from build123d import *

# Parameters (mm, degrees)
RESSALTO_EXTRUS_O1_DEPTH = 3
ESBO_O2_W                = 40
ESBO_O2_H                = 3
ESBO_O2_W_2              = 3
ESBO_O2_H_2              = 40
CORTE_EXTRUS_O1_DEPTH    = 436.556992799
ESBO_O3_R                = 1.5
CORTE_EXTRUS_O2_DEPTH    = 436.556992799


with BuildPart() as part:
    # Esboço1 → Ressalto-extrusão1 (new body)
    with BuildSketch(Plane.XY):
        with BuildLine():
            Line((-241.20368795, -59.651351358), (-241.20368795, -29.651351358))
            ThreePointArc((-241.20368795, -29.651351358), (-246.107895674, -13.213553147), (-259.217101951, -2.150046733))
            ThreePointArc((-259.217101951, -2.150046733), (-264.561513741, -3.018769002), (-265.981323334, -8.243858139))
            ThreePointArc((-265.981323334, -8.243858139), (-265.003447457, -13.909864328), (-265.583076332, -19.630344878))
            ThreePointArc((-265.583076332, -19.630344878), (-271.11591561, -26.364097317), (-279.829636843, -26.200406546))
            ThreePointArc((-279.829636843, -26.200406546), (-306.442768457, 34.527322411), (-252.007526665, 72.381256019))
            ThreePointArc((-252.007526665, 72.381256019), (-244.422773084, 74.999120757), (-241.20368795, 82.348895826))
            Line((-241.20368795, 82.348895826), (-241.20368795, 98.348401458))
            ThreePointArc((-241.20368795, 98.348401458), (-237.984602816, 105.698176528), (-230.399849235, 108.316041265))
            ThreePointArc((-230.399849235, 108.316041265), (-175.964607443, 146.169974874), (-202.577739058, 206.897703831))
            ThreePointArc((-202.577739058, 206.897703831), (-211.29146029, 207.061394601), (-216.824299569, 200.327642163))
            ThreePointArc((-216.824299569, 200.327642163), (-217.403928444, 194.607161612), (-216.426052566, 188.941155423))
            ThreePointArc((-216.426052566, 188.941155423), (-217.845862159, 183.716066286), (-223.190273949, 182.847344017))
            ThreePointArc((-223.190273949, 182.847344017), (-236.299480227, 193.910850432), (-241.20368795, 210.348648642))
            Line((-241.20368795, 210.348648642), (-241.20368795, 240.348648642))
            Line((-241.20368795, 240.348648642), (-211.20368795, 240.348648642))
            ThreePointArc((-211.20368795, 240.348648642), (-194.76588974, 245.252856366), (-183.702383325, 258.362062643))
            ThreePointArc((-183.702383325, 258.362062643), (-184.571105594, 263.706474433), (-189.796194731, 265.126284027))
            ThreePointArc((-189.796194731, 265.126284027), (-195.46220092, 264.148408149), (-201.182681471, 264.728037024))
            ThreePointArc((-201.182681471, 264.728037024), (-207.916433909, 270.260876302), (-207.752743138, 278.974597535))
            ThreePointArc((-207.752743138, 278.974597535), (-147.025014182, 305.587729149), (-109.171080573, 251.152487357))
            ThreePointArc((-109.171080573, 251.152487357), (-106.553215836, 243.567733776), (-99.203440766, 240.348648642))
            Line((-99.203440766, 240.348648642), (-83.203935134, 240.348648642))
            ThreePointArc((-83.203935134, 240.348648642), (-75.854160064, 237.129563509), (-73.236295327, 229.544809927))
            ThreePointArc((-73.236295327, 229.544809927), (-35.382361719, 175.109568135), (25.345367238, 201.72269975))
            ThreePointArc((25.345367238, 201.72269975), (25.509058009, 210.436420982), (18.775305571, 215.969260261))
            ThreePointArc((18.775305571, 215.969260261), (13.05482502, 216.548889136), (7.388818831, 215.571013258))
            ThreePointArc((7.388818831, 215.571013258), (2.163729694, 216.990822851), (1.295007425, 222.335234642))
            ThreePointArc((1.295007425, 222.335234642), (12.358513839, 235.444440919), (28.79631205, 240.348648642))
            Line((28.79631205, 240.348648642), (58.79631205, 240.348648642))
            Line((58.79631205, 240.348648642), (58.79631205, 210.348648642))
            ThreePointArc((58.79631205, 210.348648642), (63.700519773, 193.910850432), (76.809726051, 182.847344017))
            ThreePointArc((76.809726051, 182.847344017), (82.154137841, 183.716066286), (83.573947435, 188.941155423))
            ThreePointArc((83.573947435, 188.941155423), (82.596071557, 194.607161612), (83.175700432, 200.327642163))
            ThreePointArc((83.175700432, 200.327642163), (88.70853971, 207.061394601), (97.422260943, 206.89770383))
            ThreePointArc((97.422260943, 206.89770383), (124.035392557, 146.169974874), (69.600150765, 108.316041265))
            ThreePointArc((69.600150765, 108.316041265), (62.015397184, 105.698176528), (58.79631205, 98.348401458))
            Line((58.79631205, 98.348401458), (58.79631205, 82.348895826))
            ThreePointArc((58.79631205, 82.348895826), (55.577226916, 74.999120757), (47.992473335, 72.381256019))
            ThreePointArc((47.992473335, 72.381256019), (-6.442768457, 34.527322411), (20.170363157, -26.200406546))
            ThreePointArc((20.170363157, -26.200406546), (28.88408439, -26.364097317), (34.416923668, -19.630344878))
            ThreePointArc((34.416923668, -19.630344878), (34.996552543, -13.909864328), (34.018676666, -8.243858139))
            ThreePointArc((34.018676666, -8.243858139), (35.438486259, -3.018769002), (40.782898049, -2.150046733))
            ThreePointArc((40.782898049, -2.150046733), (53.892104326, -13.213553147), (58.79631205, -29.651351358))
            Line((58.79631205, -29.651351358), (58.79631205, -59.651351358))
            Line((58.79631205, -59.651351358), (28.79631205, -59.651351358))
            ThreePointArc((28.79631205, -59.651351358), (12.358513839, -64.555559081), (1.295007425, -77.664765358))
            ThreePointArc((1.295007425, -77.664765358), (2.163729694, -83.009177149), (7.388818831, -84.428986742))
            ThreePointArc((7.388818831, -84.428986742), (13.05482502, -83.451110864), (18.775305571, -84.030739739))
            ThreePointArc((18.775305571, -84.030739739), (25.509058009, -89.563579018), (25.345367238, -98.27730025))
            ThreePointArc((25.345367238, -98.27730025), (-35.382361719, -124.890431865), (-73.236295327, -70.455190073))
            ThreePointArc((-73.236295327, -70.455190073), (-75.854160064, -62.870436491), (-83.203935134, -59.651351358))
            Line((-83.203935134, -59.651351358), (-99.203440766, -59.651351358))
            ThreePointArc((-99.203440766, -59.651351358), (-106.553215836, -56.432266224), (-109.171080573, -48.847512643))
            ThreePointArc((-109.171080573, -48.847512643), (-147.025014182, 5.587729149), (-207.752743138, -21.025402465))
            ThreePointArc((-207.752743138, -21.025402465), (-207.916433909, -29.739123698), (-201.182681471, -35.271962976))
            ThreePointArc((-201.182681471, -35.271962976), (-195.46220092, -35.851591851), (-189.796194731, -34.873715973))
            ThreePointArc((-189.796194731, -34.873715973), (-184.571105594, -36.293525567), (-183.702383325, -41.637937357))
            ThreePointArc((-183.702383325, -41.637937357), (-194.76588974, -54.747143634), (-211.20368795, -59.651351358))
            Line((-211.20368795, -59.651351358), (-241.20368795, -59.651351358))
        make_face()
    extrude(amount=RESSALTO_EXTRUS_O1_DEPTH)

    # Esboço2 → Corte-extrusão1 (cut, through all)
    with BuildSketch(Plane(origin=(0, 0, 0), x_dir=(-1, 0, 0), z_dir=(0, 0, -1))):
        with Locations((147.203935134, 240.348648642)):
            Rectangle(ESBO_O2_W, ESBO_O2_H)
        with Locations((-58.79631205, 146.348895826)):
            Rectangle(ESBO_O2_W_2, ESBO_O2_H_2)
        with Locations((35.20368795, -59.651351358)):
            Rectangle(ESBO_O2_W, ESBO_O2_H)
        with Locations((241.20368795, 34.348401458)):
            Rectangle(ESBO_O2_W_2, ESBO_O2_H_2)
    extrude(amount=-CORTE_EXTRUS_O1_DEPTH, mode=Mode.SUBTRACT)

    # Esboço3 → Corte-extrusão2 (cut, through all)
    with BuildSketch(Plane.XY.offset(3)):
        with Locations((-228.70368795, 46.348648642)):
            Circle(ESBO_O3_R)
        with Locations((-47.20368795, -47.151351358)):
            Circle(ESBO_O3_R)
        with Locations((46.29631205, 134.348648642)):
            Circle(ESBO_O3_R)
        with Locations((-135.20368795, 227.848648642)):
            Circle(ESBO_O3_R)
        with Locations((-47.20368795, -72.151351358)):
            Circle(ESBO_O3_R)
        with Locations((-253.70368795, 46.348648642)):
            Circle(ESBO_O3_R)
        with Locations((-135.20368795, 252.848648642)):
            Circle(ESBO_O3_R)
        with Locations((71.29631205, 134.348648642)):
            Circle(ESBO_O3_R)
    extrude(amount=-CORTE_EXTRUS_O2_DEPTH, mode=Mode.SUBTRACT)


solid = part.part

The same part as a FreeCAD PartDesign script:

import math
import FreeCAD as App
import Part
import Sketcher
from FreeCAD import Vector


def add_polygon(sketch, points):
    """Adds a closed chain of lines whose ends are joined by coincident constraints."""
    first, n = sketch.GeometryCount, len(points)
    for a, b in zip(points, points[1:] + points[:1]):
        sketch.addGeometry(Part.LineSegment(App.Vector(*a, 0), App.Vector(*b, 0)), False)
    for i in range(n):
        sketch.addConstraint(Sketcher.Constraint("Coincident", first + i, 2, first + (i + 1) % n, 1))

doc = App.newDocument("Part")
body = doc.addObject("PartDesign::Body", "Body")

sketch1 = body.newObject("Sketcher::SketchObject", "Sketch")
sketch1.AttachmentSupport = (doc.getObject("XY_Plane"), [""])
sketch1.MapMode = "FlatFace"
sketch1.addGeometry([
    Part.LineSegment(Vector(-241.203688, -29.651351, 0), Vector(-241.203688, -59.651351, 0)),
    Part.LineSegment(Vector(-241.203688, -59.651351, 0), Vector(-211.203688, -59.651351, 0)),
    Part.ArcOfCircle(Part.Circle(Vector(-211.203688, -29.651351, 0), Vector(0, 0, 1), 30), math.radians(-90), math.radians(-23.550229)),
    Part.ArcOfCircle(Part.Circle(Vector(-188.285934, -39.640173, 0), Vector(0, 0, 1), 5), math.radians(-23.550229), math.radians(107.5809)),
    Part.ArcOfCircle(Part.Circle(Vector(-196.203688, -14.651351, 0), Vector(0, 0, 1), 21.213203), math.radians(-103.574647), math.radians(-72.4191)),
    Part.ArcOfCircle(Part.Circle(Vector(-198.835561, -25.551313, 0), Vector(0, 0, 1), 10), math.radians(153.089952), math.radians(256.425353)),
    Part.ArcOfCircle(Part.Circle(Vector(-161.203688, -44.651351, 0), Vector(0, 0, 1), 52.201533), math.radians(-4.610631), math.radians(153.089952)),
    Part.ArcOfCircle(Part.Circle(Vector(-99.203441, -49.651351, 0), Vector(0, 0, 1), 10), math.radians(175.389369), math.radians(270)),
    Part.LineSegment(Vector(-99.203441, -59.651351, 0), Vector(-83.203935, -59.651351, 0)),
    Part.ArcOfCircle(Part.Circle(Vector(-83.203935, -69.651351, 0), Vector(0, 0, 1), 10), math.radians(-4.610631), math.radians(90)),
    Part.ArcOfCircle(Part.Circle(Vector(-21.203688, -74.651351, 0), Vector(0, 0, 1), 52.201533), math.radians(175.389369), math.radians(333.089952)),
    Part.ArcOfCircle(Part.Circle(Vector(16.428186, -93.751389, 0), Vector(0, 0, 1), 10), math.radians(-26.910048), math.radians(76.425353)),
    Part.ArcOfCircle(Part.Circle(Vector(13.796312, -104.651351, 0), Vector(0, 0, 1), 21.213203), math.radians(76.425353), math.radians(107.5809)),
    Part.ArcOfCircle(Part.Circle(Vector(5.878558, -79.66253, 0), Vector(0, 0, 1), 5), math.radians(156.449771), math.radians(287.5809)),
    Part.ArcOfCircle(Part.Circle(Vector(28.796312, -89.651351, 0), Vector(0, 0, 1), 30), math.radians(90), math.radians(156.449771)),
    Part.LineSegment(Vector(28.796312, -59.651351, 0), Vector(58.796312, -59.651351, 0)),
    Part.LineSegment(Vector(58.796312, -59.651351, 0), Vector(58.796312, -29.651351, 0)),
    Part.ArcOfCircle(Part.Circle(Vector(28.796312, -29.651351, 0), Vector(0, 0, 1), 30), math.radians(0), math.radians(66.449771)),
    Part.ArcOfCircle(Part.Circle(Vector(38.785134, -6.733598, 0), Vector(0, 0, 1), 5), math.radians(66.449771), math.radians(197.5809)),
    Part.ArcOfCircle(Part.Circle(Vector(13.796312, -14.651351, 0), Vector(0, 0, 1), 21.213203), math.radians(-13.574647), math.radians(17.5809)),
    Part.ArcOfCircle(Part.Circle(Vector(24.696274, -17.283225, 0), Vector(0, 0, 1), 10), math.radians(-116.910048), math.radians(-13.574647)),
    Part.ArcOfCircle(Part.Circle(Vector(43.796312, 20.348649, 0), Vector(0, 0, 1), 52.201533), math.radians(85.389369), math.radians(243.089952)),
    Part.ArcOfCircle(Part.Circle(Vector(48.796312, 82.348896, 0), Vector(0, 0, 1), 10), math.radians(-94.610631), math.radians(0)),
    Part.LineSegment(Vector(58.796312, 82.348896, 0), Vector(58.796312, 98.348401, 0)),
    Part.ArcOfCircle(Part.Circle(Vector(68.796312, 98.348401, 0), Vector(0, 0, 1), 10), math.radians(85.389369), math.radians(180)),
    Part.ArcOfCircle(Part.Circle(Vector(73.796312, 160.348649, 0), Vector(0, 0, 1), 52.201533), math.radians(-94.610631), math.radians(63.089952)),
    Part.ArcOfCircle(Part.Circle(Vector(92.89635, 197.980522, 0), Vector(0, 0, 1), 10), math.radians(63.089952), math.radians(166.425353)),
    Part.ArcOfCircle(Part.Circle(Vector(103.796312, 195.348649, 0), Vector(0, 0, 1), 21.213203), math.radians(166.425353), math.radians(197.5809)),
    Part.ArcOfCircle(Part.Circle(Vector(78.80749, 187.430895, 0), Vector(0, 0, 1), 5), math.radians(-113.550229), math.radians(17.5809)),
    Part.ArcOfCircle(Part.Circle(Vector(88.796312, 210.348649, 0), Vector(0, 0, 1), 30), math.radians(180), math.radians(246.449771)),
    Part.LineSegment(Vector(58.796312, 210.348649, 0), Vector(58.796312, 240.348649, 0)),
    Part.LineSegment(Vector(58.796312, 240.348649, 0), Vector(28.796312, 240.348649, 0)),
    Part.ArcOfCircle(Part.Circle(Vector(28.796312, 210.348649, 0), Vector(0, 0, 1), 30), math.radians(90), math.radians(156.449771)),
    Part.ArcOfCircle(Part.Circle(Vector(5.878558, 220.33747, 0), Vector(0, 0, 1), 5), math.radians(156.449771), math.radians(287.5809)),
    Part.ArcOfCircle(Part.Circle(Vector(13.796312, 195.348649, 0), Vector(0, 0, 1), 21.213203), math.radians(76.425353), math.radians(107.5809)),
    Part.ArcOfCircle(Part.Circle(Vector(16.428186, 206.248611, 0), Vector(0, 0, 1), 10), math.radians(-26.910048), math.radians(76.425353)),
    Part.ArcOfCircle(Part.Circle(Vector(-21.203688, 225.348649, 0), Vector(0, 0, 1), 52.201533), math.radians(175.389369), math.radians(333.089952)),
    Part.ArcOfCircle(Part.Circle(Vector(-83.203935, 230.348649, 0), Vector(0, 0, 1), 10), math.radians(-4.610631), math.radians(90)),
    Part.LineSegment(Vector(-83.203935, 240.348649, 0), Vector(-99.203441, 240.348649, 0)),
    Part.ArcOfCircle(Part.Circle(Vector(-99.203441, 250.348649, 0), Vector(0, 0, 1), 10), math.radians(175.389369), math.radians(270)),
    Part.ArcOfCircle(Part.Circle(Vector(-161.203688, 255.348649, 0), Vector(0, 0, 1), 52.201533), math.radians(-4.610631), math.radians(153.089952)),
    Part.ArcOfCircle(Part.Circle(Vector(-198.835561, 274.448687, 0), Vector(0, 0, 1), 10), math.radians(153.089952), math.radians(256.425353)),
    Part.ArcOfCircle(Part.Circle(Vector(-196.203688, 285.348649, 0), Vector(0, 0, 1), 21.213203), math.radians(-103.574647), math.radians(-72.4191)),
    Part.ArcOfCircle(Part.Circle(Vector(-188.285934, 260.359827, 0), Vector(0, 0, 1), 5), math.radians(-23.550229), math.radians(107.5809)),
    Part.ArcOfCircle(Part.Circle(Vector(-211.203688, 270.348649, 0), Vector(0, 0, 1), 30), math.radians(-90), math.radians(-23.550229)),
    Part.LineSegment(Vector(-211.203688, 240.348649, 0), Vector(-241.203688, 240.348649, 0)),
    Part.LineSegment(Vector(-241.203688, 240.348649, 0), Vector(-241.203688, 210.348649, 0)),
    Part.ArcOfCircle(Part.Circle(Vector(-211.203688, 210.348649, 0), Vector(0, 0, 1), 30), math.radians(180), math.radians(246.449771)),
    Part.ArcOfCircle(Part.Circle(Vector(-221.19251, 187.430895, 0), Vector(0, 0, 1), 5), math.radians(-113.550229), math.radians(17.5809)),
    Part.ArcOfCircle(Part.Circle(Vector(-196.203688, 195.348649, 0), Vector(0, 0, 1), 21.213203), math.radians(166.425353), math.radians(197.5809)),
    Part.ArcOfCircle(Part.Circle(Vector(-207.10365, 197.980522, 0), Vector(0, 0, 1), 10), math.radians(63.089952), math.radians(166.425353)),
    Part.ArcOfCircle(Part.Circle(Vector(-226.203688, 160.348649, 0), Vector(0, 0, 1), 52.201533), math.radians(-94.610631), math.radians(63.089952)),
    Part.ArcOfCircle(Part.Circle(Vector(-231.203688, 98.348401, 0), Vector(0, 0, 1), 10), math.radians(85.389369), math.radians(180)),
    Part.LineSegment(Vector(-241.203688, 98.348401, 0), Vector(-241.203688, 82.348896, 0)),
    Part.ArcOfCircle(Part.Circle(Vector(-251.203688, 82.348896, 0), Vector(0, 0, 1), 10), math.radians(-94.610631), math.radians(0)),
    Part.ArcOfCircle(Part.Circle(Vector(-256.203688, 20.348649, 0), Vector(0, 0, 1), 52.201533), math.radians(85.389369), math.radians(243.089952)),
    Part.ArcOfCircle(Part.Circle(Vector(-275.303726, -17.283225, 0), Vector(0, 0, 1), 10), math.radians(-116.910048), math.radians(-13.574647)),
    Part.ArcOfCircle(Part.Circle(Vector(-286.203688, -14.651351, 0), Vector(0, 0, 1), 21.213203), math.radians(-13.574647), math.radians(17.5809)),
    Part.ArcOfCircle(Part.Circle(Vector(-261.214866, -6.733598, 0), Vector(0, 0, 1), 5), math.radians(66.449771), math.radians(197.5809)),
    Part.ArcOfCircle(Part.Circle(Vector(-271.203688, -29.651351, 0), Vector(0, 0, 1), 30), math.radians(0), math.radians(66.449771)),
], False)
sketch1.addConstraint([
    Sketcher.Constraint("Coincident", 0, 2, 1, 1),
    Sketcher.Constraint("Coincident", 1, 2, 2, 1),
    Sketcher.Constraint("Coincident", 2, 2, 3, 1),
    Sketcher.Constraint("Coincident", 3, 2, 4, 2),
    Sketcher.Constraint("Coincident", 4, 1, 5, 2),
    Sketcher.Constraint("Coincident", 5, 1, 6, 2),
    Sketcher.Constraint("Coincident", 6, 1, 7, 1),
    Sketcher.Constraint("Coincident", 7, 2, 8, 1),
    Sketcher.Constraint("Coincident", 8, 2, 9, 2),
    Sketcher.Constraint("Coincident", 9, 1, 10, 1),
    Sketcher.Constraint("Coincident", 10, 2, 11, 1),
    Sketcher.Constraint("Coincident", 11, 2, 12, 1),
    Sketcher.Constraint("Coincident", 12, 2, 13, 2),
    Sketcher.Constraint("Coincident", 13, 1, 14, 2),
    Sketcher.Constraint("Coincident", 14, 1, 15, 1),
    Sketcher.Constraint("Coincident", 15, 2, 16, 1),
    Sketcher.Constraint("Coincident", 16, 2, 17, 1),
    Sketcher.Constraint("Coincident", 17, 2, 18, 1),
    Sketcher.Constraint("Coincident", 18, 2, 19, 2),
    Sketcher.Constraint("Coincident", 19, 1, 20, 2),
    Sketcher.Constraint("Coincident", 20, 1, 21, 2),
    Sketcher.Constraint("Coincident", 21, 1, 22, 1),
    Sketcher.Constraint("Coincident", 22, 2, 23, 1),
    Sketcher.Constraint("Coincident", 23, 2, 24, 2),
    Sketcher.Constraint("Coincident", 24, 1, 25, 1),
    Sketcher.Constraint("Coincident", 25, 2, 26, 1),
    Sketcher.Constraint("Coincident", 26, 2, 27, 1),
    Sketcher.Constraint("Coincident", 27, 2, 28, 2),
    Sketcher.Constraint("Coincident", 28, 1, 29, 2),
    Sketcher.Constraint("Coincident", 29, 1, 30, 1),
    Sketcher.Constraint("Coincident", 30, 2, 31, 1),
    Sketcher.Constraint("Coincident", 31, 2, 32, 1),
    Sketcher.Constraint("Coincident", 32, 2, 33, 1),
    Sketcher.Constraint("Coincident", 33, 2, 34, 2),
    Sketcher.Constraint("Coincident", 34, 1, 35, 2),
    Sketcher.Constraint("Coincident", 35, 1, 36, 2),
    Sketcher.Constraint("Coincident", 36, 1, 37, 1),
    Sketcher.Constraint("Coincident", 37, 2, 38, 1),
    Sketcher.Constraint("Coincident", 38, 2, 39, 2),
    Sketcher.Constraint("Coincident", 39, 1, 40, 1),
    Sketcher.Constraint("Coincident", 40, 2, 41, 1),
    Sketcher.Constraint("Coincident", 41, 2, 42, 1),
    Sketcher.Constraint("Coincident", 42, 2, 43, 2),
    Sketcher.Constraint("Coincident", 43, 1, 44, 2),
    Sketcher.Constraint("Coincident", 44, 1, 45, 1),
    Sketcher.Constraint("Coincident", 45, 2, 46, 1),
    Sketcher.Constraint("Coincident", 46, 2, 47, 1),
    Sketcher.Constraint("Coincident", 47, 2, 48, 1),
    Sketcher.Constraint("Coincident", 48, 2, 49, 2),
    Sketcher.Constraint("Coincident", 49, 1, 50, 2),
    Sketcher.Constraint("Coincident", 50, 1, 51, 2),
    Sketcher.Constraint("Coincident", 51, 1, 52, 1),
    Sketcher.Constraint("Coincident", 52, 2, 53, 1),
    Sketcher.Constraint("Coincident", 53, 2, 54, 2),
    Sketcher.Constraint("Coincident", 54, 1, 55, 1),
    Sketcher.Constraint("Coincident", 55, 2, 56, 1),
    Sketcher.Constraint("Coincident", 56, 2, 57, 1),
    Sketcher.Constraint("Coincident", 57, 2, 58, 2),
    Sketcher.Constraint("Coincident", 58, 1, 59, 2),
    Sketcher.Constraint("Coincident", 59, 1, 0, 1),
    Sketcher.Constraint("Vertical", 0),
    Sketcher.Constraint("Horizontal", 1),
    Sketcher.Constraint("Horizontal", 8),
    Sketcher.Constraint("Horizontal", 15),
    Sketcher.Constraint("Vertical", 16),
    Sketcher.Constraint("Vertical", 23),
    Sketcher.Constraint("Vertical", 30),
    Sketcher.Constraint("Horizontal", 31),
    Sketcher.Constraint("Horizontal", 38),
    Sketcher.Constraint("Horizontal", 45),
    Sketcher.Constraint("Vertical", 46),
    Sketcher.Constraint("Vertical", 53),
    Sketcher.Constraint("Radius", 2, 30.0),
    Sketcher.Constraint("Radius", 3, 5.0),
    Sketcher.Constraint("Radius", 5, 10.0),
    Sketcher.Constraint("Radius", 7, 10.0),
    Sketcher.Constraint("Radius", 9, 10.0),
    Sketcher.Constraint("Radius", 11, 10.0),
    Sketcher.Constraint("Radius", 13, 5.0),
    Sketcher.Constraint("Radius", 14, 30.0),
    Sketcher.Constraint("Radius", 17, 30.0),
    Sketcher.Constraint("Radius", 18, 5.0),
    Sketcher.Constraint("Radius", 20, 10.0),
    Sketcher.Constraint("Radius", 22, 10.0),
    Sketcher.Constraint("Radius", 24, 10.0),
    Sketcher.Constraint("Radius", 26, 10.0),
    Sketcher.Constraint("Radius", 28, 5.0),
    Sketcher.Constraint("Radius", 29, 30.0),
    Sketcher.Constraint("Radius", 32, 30.0),
    Sketcher.Constraint("Radius", 33, 5.0),
    Sketcher.Constraint("Radius", 35, 10.0),
    Sketcher.Constraint("Radius", 37, 10.0),
    Sketcher.Constraint("Radius", 39, 10.0),
    Sketcher.Constraint("Radius", 41, 10.0),
    Sketcher.Constraint("Radius", 43, 5.0),
    Sketcher.Constraint("Radius", 44, 30.0),
    Sketcher.Constraint("Radius", 47, 30.0),
    Sketcher.Constraint("Radius", 48, 5.0),
    Sketcher.Constraint("Radius", 50, 10.0),
    Sketcher.Constraint("Radius", 52, 10.0),
    Sketcher.Constraint("Radius", 54, 10.0),
    Sketcher.Constraint("Radius", 56, 10.0),
    Sketcher.Constraint("Radius", 58, 5.0),
    Sketcher.Constraint("Radius", 59, 30.0),
    Sketcher.Constraint("DistanceX", 1, 1, 1, 2, 30.0),
    Sketcher.Constraint("DistanceX", 15, 1, 15, 2, 30.0),
    Sketcher.Constraint("DistanceX", 31, 2, 31, 1, 30.0),
    Sketcher.Constraint("DistanceX", 45, 2, 45, 1, 30.0),
    Sketcher.Constraint("DistanceY", 0, 2, 0, 1, 30.0),
    Sketcher.Constraint("DistanceY", 16, 1, 16, 2, 30.0),
    Sketcher.Constraint("DistanceY", 30, 1, 30, 2, 30.0),
    Sketcher.Constraint("DistanceY", 46, 2, 46, 1, 30.0),
    Sketcher.Constraint("Radius", 4, 21.213203),
    Sketcher.Constraint("Radius", 6, 52.201533),
    Sketcher.Constraint("Radius", 10, 52.201533),
    Sketcher.Constraint("Radius", 12, 21.213203),
    Sketcher.Constraint("Radius", 19, 21.213203),
    Sketcher.Constraint("Radius", 21, 52.201533),
    Sketcher.Constraint("Radius", 25, 52.201533),
    Sketcher.Constraint("Radius", 27, 21.213203),
    Sketcher.Constraint("Radius", 34, 21.213203),
    Sketcher.Constraint("Radius", 36, 52.201533),
    Sketcher.Constraint("Radius", 40, 52.201533),
    Sketcher.Constraint("Radius", 42, 21.213203),
    Sketcher.Constraint("Radius", 49, 21.213203),
    Sketcher.Constraint("Radius", 51, 52.201533),
    Sketcher.Constraint("Radius", 55, 52.201533),
    Sketcher.Constraint("Radius", 57, 21.213203),
    Sketcher.Constraint("DistanceY", -1, 1, 24, 3, 98.348401),
    Sketcher.Constraint("DistanceY", -1, 1, 52, 3, 98.348401),
    Sketcher.Constraint("DistanceY", 10, 2, -1, 1, 98.2773),
    Sketcher.Constraint("DistanceX", -1, 1, 17, 2, 40.782898),
    Sketcher.Constraint("DistanceY", -1, 1, 23, 2, 98.348401),
    Sketcher.Constraint("DistanceX", -1, 1, 26, 2, 83.1757),
    Sketcher.Constraint("DistanceY", -1, 1, 35, 1, 201.7227),
    Sketcher.Constraint("DistanceX", 49, 1, -1, 1, 216.8243),
    Sketcher.Constraint("DistanceY", -1, 1, 52, 2, 98.348401),
    Sketcher.Constraint("DistanceX", 58, 1, -1, 1, 259.217102),
    Sketcher.Constraint("DistanceX", 8, 1, 8, 2, 15.999506),
    Sketcher.Constraint("DistanceX", 38, 2, 38, 1, 15.999506),
    Sketcher.Constraint("DistanceY", 23, 1, 23, 2, 15.999506),
    Sketcher.Constraint("DistanceY", 53, 2, 53, 1, 15.999506),
    Sketcher.Constraint("DistanceY", 2, 3, -1, 1, 29.651351),
    Sketcher.Constraint("DistanceY", 4, 3, -1, 1, 14.651351),
    Sketcher.Constraint("DistanceX", 5, 3, -1, 1, 198.835561),
    Sketcher.Constraint("DistanceY", 6, 3, -1, 1, 44.651351),
    Sketcher.Constraint("DistanceX", 7, 3, -1, 1, 99.203441),
    Sketcher.Constraint("DistanceY", 7, 3, -1, 1, 49.651351),
    Sketcher.Constraint("DistanceY", 10, 3, -1, 1, 74.651351),
    Sketcher.Constraint("DistanceY", 11, 3, -1, 1, 93.751389),
    Sketcher.Constraint("DistanceY", 12, 3, -1, 1, 104.651351),
    Sketcher.Constraint("DistanceX", -1, 1, 13, 3, 5.878558),
    Sketcher.Constraint("DistanceY", 13, 3, -1, 1, 79.66253),
    Sketcher.Constraint("DistanceY", 14, 3, -1, 1, 89.651351),
    Sketcher.Constraint("DistanceY", 17, 3, -1, 1, 29.651351),
    Sketcher.Constraint("DistanceY", 19, 3, -1, 1, 14.651351),
    Sketcher.Constraint("DistanceY", -1, 1, 21, 3, 20.348649),
    Sketcher.Constraint("DistanceY", -1, 1, 25, 3, 160.348649),
    Sketcher.Constraint("DistanceX", -1, 1, 26, 3, 92.89635),
    Sketcher.Constraint("DistanceY", -1, 1, 27, 3, 195.348649),
    Sketcher.Constraint("DistanceX", -1, 1, 28, 3, 78.80749),
    Sketcher.Constraint("DistanceY", -1, 1, 29, 3, 210.348649),
    Sketcher.Constraint("DistanceY", -1, 1, 32, 3, 210.348649),
    Sketcher.Constraint("DistanceX", -1, 1, 33, 3, 5.878558),
    Sketcher.Constraint("DistanceY", -1, 1, 33, 3, 220.33747),
    Sketcher.Constraint("DistanceY", -1, 1, 34, 3, 195.348649),
    Sketcher.Constraint("DistanceY", -1, 1, 35, 3, 206.248611),
    Sketcher.Constraint("DistanceY", -1, 1, 36, 3, 225.348649),
    Sketcher.Constraint("DistanceY", -1, 1, 37, 3, 230.348649),
    Sketcher.Constraint("DistanceX", 39, 3, -1, 1, 99.203441),
    Sketcher.Constraint("DistanceY", -1, 1, 40, 3, 255.348649),
    Sketcher.Constraint("DistanceX", 41, 3, -1, 1, 198.835561),
    Sketcher.Constraint("DistanceY", -1, 1, 42, 3, 285.348649),
    Sketcher.Constraint("DistanceY", -1, 1, 44, 3, 270.348649),
    Sketcher.Constraint("DistanceY", -1, 1, 47, 3, 210.348649),
    Sketcher.Constraint("DistanceX", 48, 3, -1, 1, 221.19251),
    Sketcher.Constraint("DistanceY", -1, 1, 49, 3, 195.348649),
    Sketcher.Constraint("DistanceX", 50, 3, -1, 1, 207.10365),
    Sketcher.Constraint("DistanceY", -1, 1, 51, 3, 160.348649),
    Sketcher.Constraint("DistanceY", -1, 1, 55, 3, 20.348649),
    Sketcher.Constraint("DistanceY", 57, 3, -1, 1, 14.651351),
    Sketcher.Constraint("DistanceY", 59, 3, -1, 1, 29.651351),
    Sketcher.Constraint("DistanceX", 4, 1, -1, 1, 201.182681),
    Sketcher.Constraint("DistanceX", 6, 1, -1, 1, 109.171081),
    Sketcher.Constraint("DistanceX", 7, 2, -1, 1, 99.203441),
    Sketcher.Constraint("DistanceY", 9, 1, -1, 1, 70.45519),
    Sketcher.Constraint("DistanceY", 11, 2, -1, 1, 84.03074),
    Sketcher.Constraint("DistanceX", -1, 1, 12, 2, 7.388819),
    Sketcher.Constraint("DistanceY", 18, 2, -1, 1, 8.243858),
    Sketcher.Constraint("DistanceX", -1, 1, 24, 1, 69.600151),
    Sketcher.Constraint("DistanceY", -1, 1, 24, 1, 108.316041),
    Sketcher.Constraint("DistanceX", -1, 1, 25, 2, 97.422261),
    Sketcher.Constraint("DistanceX", -1, 1, 33, 2, 7.388819),
    Sketcher.Constraint("DistanceY", -1, 1, 34, 1, 215.96926),
    Sketcher.Constraint("DistanceY", -1, 1, 36, 1, 229.54481),
    Sketcher.Constraint("DistanceX", 38, 2, -1, 1, 99.203441),
    Sketcher.Constraint("DistanceX", 39, 1, -1, 1, 109.171081),
    Sketcher.Constraint("DistanceX", 41, 2, -1, 1, 201.182681),
    Sketcher.Constraint("DistanceX", 50, 1, -1, 1, 202.577739),
    Sketcher.Constraint("DistanceX", 51, 1, -1, 1, 230.399849),
    Sketcher.Constraint("DistanceY", -1, 1, 51, 1, 108.316041),
    Sketcher.Constraint("DistanceY", 57, 2, -1, 1, 8.243858),
    Sketcher.Constraint("DistanceX", 2, 3, -1, 1, 211.203688),
    Sketcher.Constraint("DistanceX", -1, 1, 17, 3, 28.796312),
    Sketcher.Constraint("DistanceX", -1, 1, 18, 3, 38.785134),
    Sketcher.Constraint("DistanceX", -1, 1, 20, 3, 24.696274),
    Sketcher.Constraint("DistanceX", 43, 3, -1, 1, 188.285934),
    Sketcher.Constraint("DistanceY", -1, 1, 54, 3, 82.348896),
    Sketcher.Constraint("DistanceX", 56, 3, -1, 1, 275.303726),
    Sketcher.Constraint("DistanceX", 58, 3, -1, 1, 261.214866),
    Sketcher.Constraint("DistanceX", 2, 2, -1, 1, 183.702383),
    Sketcher.Constraint("DistanceX", 3, 2, -1, 1, 189.796195),
    Sketcher.Constraint("DistanceX", 5, 1, -1, 1, 207.752743),
    Sketcher.Constraint("DistanceX", -1, 1, 13, 1, 1.295007),
    Sketcher.Constraint("DistanceX", -1, 1, 19, 1, 34.416924),
    Sketcher.Constraint("DistanceX", -1, 1, 20, 1, 20.170363),
    Sketcher.Constraint("DistanceX", -1, 1, 21, 1, 47.992473),
    Sketcher.Constraint("DistanceX", -1, 1, 27, 2, 83.573947),
    Sketcher.Constraint("DistanceX", -1, 1, 28, 1, 76.809726),
    Sketcher.Constraint("DistanceX", -1, 1, 32, 2, 1.295007),
    Sketcher.Constraint("DistanceX", 40, 2, -1, 1, 207.752743),
    Sketcher.Constraint("DistanceX", 42, 2, -1, 1, 189.796195),
    Sketcher.Constraint("DistanceX", 43, 1, -1, 1, 183.702383),
    Sketcher.Constraint("DistanceX", 47, 2, -1, 1, 223.190274),
    Sketcher.Constraint("DistanceX", 48, 2, -1, 1, 216.426053),
    Sketcher.Constraint("DistanceX", 54, 1, -1, 1, 252.007527),
    Sketcher.Constraint("DistanceX", 55, 2, -1, 1, 279.829637),
    Sketcher.Constraint("DistanceX", 56, 2, -1, 1, 265.583076),
])
pad1 = body.newObject("PartDesign::Pad", "Pad")
pad1.Profile = sketch1
pad1.Length = 3

sketch2 = body.newObject("Sketcher::SketchObject", "Sketch001")
sketch2.AttachmentSupport = (doc.getObject("XY_Plane"), [""])
sketch2.MapMode = "FlatFace"
add_polygon(sketch2, [(-127.2, 241.8), (-127.2, 238.8), (-167.2, 238.8), (-167.2, 241.8)])
add_polygon(sketch2, [(60.3, 166.3), (60.3, 126.3), (57.3, 126.3), (57.3, 166.3)])
add_polygon(sketch2, [(-15.2, -58.2), (-15.2, -61.2), (-55.2, -61.2), (-55.2, -58.2)])
add_polygon(sketch2, [(-239.7, 54.3), (-239.7, 14.3), (-242.7, 14.3), (-242.7, 54.3)])
sketch2.addConstraint([
    Sketcher.Constraint("Vertical", 0),
    Sketcher.Constraint("Horizontal", 1),
    Sketcher.Constraint("Vertical", 2),
    Sketcher.Constraint("Horizontal", 3),
    Sketcher.Constraint("Vertical", 4),
    Sketcher.Constraint("Horizontal", 5),
    Sketcher.Constraint("Vertical", 6),
    Sketcher.Constraint("Horizontal", 7),
    Sketcher.Constraint("Vertical", 8),
    Sketcher.Constraint("Horizontal", 9),
    Sketcher.Constraint("Vertical", 10),
    Sketcher.Constraint("Horizontal", 11),
    Sketcher.Constraint("Vertical", 12),
    Sketcher.Constraint("Horizontal", 13),
    Sketcher.Constraint("Vertical", 14),
    Sketcher.Constraint("Horizontal", 15),
    Sketcher.Constraint("Equal", 3, 9),
    Sketcher.Constraint("Equal", 7, 13),
    Sketcher.Constraint("Equal", 15, 0),
    Sketcher.Constraint("Equal", 11, 4),
    Sketcher.Constraint("Equal", 2, 8),
    Sketcher.Constraint("Equal", 6, 12),
    Sketcher.Constraint("DistanceX", 1, 2, 1, 1, 40.0),
    Sketcher.Constraint("DistanceX", 5, 2, 5, 1, 3.0),
    Sketcher.Constraint("DistanceY", 8, 2, 0, 2, 300.0),
    Sketcher.Constraint("DistanceX", 8, 2, 5, 2, 72.5),
    Sketcher.Constraint("DistanceX", 12, 2, 10, 2, 184.5),
    Sketcher.Constraint("DistanceY", -1, 1, 12, 2, 14.348401),
    Sketcher.Constraint("DistanceY", -1, 1, 0, 2, 238.848649),
    Sketcher.Constraint("DistanceX", 0, 2, -1, 1, 127.203935),
    Sketcher.Constraint("DistanceX", -1, 1, 4, 2, 60.296312),
    Sketcher.Constraint("DistanceY", -1, 1, 4, 2, 126.348896),
])
pocket1 = body.newObject("PartDesign::Pocket", "Pocket")
pocket1.Profile = sketch2
pocket1.Type = "ThroughAll"
pocket1.Reversed = True

sketch3 = body.newObject("Sketcher::SketchObject", "Sketch002")
sketch3.AttachmentSupport = (doc.getObject("XY_Plane"), [""])
sketch3.MapMode = "FlatFace"
sketch3.AttachmentOffset = App.Placement(Vector(0, 0, 3), App.Rotation())
sketch3.addGeometry([
    Part.Circle(Vector(-228.7, 46.3, 0), Vector(0, 0, 1), 1.5),
    Part.Circle(Vector(-47.2, -47.2, 0), Vector(0, 0, 1), 1.5),
    Part.Circle(Vector(46.3, 134.3, 0), Vector(0, 0, 1), 1.5),
    Part.Circle(Vector(-135.2, 227.8, 0), Vector(0, 0, 1), 1.5),
    Part.Circle(Vector(-47.2, -72.2, 0), Vector(0, 0, 1), 1.5),
    Part.Circle(Vector(-253.7, 46.3, 0), Vector(0, 0, 1), 1.5),
    Part.Circle(Vector(-135.2, 252.8, 0), Vector(0, 0, 1), 1.5),
    Part.Circle(Vector(71.3, 134.3, 0), Vector(0, 0, 1), 1.5),
], False)
sketch3.addConstraint([
    Sketcher.Constraint("Equal", 0, 1),
    Sketcher.Constraint("Equal", 1, 2),
    Sketcher.Constraint("Equal", 2, 3),
    Sketcher.Constraint("Equal", 3, 4),
    Sketcher.Constraint("Equal", 4, 5),
    Sketcher.Constraint("Equal", 5, 6),
    Sketcher.Constraint("Equal", 6, 7),
    Sketcher.Constraint("Horizontal", 0, 3, 5, 3),
    Sketcher.Constraint("Horizontal", 2, 3, 7, 3),
    Sketcher.Constraint("Vertical", 1, 3, 4, 3),
    Sketcher.Constraint("Vertical", 3, 3, 6, 3),
    Sketcher.Constraint("Diameter", 0, 3.0),
    Sketcher.Constraint("DistanceX", 0, 3, 2, 3, 275.0),
    Sketcher.Constraint("DistanceY", 0, 3, 2, 3, 88.0),
    Sketcher.Constraint("DistanceX", 3, 3, 1, 3, 88.0),
    Sketcher.Constraint("DistanceY", 1, 3, 3, 3, 275.0),
    Sketcher.Constraint("DistanceY", 4, 3, 1, 3, 25.0),
    Sketcher.Constraint("DistanceX", 5, 3, 0, 3, 25.0),
    Sketcher.Constraint("DistanceY", 3, 3, 6, 3, 25.0),
    Sketcher.Constraint("DistanceX", 2, 3, 7, 3, 25.0),
    Sketcher.Constraint("DistanceX", 0, 3, 1, 3, 181.5),
    Sketcher.Constraint("DistanceY", 1, 3, 0, 3, 93.5),
    Sketcher.Constraint("DistanceY", -1, 1, 0, 3, 46.348649),
    Sketcher.Constraint("DistanceX", 0, 3, -1, 1, 228.703688),
])
pocket2 = body.newObject("PartDesign::Pocket", "Pocket001")
pocket2.Profile = sketch3
pocket2.Type = "ThroughAll"

doc.recompute()
